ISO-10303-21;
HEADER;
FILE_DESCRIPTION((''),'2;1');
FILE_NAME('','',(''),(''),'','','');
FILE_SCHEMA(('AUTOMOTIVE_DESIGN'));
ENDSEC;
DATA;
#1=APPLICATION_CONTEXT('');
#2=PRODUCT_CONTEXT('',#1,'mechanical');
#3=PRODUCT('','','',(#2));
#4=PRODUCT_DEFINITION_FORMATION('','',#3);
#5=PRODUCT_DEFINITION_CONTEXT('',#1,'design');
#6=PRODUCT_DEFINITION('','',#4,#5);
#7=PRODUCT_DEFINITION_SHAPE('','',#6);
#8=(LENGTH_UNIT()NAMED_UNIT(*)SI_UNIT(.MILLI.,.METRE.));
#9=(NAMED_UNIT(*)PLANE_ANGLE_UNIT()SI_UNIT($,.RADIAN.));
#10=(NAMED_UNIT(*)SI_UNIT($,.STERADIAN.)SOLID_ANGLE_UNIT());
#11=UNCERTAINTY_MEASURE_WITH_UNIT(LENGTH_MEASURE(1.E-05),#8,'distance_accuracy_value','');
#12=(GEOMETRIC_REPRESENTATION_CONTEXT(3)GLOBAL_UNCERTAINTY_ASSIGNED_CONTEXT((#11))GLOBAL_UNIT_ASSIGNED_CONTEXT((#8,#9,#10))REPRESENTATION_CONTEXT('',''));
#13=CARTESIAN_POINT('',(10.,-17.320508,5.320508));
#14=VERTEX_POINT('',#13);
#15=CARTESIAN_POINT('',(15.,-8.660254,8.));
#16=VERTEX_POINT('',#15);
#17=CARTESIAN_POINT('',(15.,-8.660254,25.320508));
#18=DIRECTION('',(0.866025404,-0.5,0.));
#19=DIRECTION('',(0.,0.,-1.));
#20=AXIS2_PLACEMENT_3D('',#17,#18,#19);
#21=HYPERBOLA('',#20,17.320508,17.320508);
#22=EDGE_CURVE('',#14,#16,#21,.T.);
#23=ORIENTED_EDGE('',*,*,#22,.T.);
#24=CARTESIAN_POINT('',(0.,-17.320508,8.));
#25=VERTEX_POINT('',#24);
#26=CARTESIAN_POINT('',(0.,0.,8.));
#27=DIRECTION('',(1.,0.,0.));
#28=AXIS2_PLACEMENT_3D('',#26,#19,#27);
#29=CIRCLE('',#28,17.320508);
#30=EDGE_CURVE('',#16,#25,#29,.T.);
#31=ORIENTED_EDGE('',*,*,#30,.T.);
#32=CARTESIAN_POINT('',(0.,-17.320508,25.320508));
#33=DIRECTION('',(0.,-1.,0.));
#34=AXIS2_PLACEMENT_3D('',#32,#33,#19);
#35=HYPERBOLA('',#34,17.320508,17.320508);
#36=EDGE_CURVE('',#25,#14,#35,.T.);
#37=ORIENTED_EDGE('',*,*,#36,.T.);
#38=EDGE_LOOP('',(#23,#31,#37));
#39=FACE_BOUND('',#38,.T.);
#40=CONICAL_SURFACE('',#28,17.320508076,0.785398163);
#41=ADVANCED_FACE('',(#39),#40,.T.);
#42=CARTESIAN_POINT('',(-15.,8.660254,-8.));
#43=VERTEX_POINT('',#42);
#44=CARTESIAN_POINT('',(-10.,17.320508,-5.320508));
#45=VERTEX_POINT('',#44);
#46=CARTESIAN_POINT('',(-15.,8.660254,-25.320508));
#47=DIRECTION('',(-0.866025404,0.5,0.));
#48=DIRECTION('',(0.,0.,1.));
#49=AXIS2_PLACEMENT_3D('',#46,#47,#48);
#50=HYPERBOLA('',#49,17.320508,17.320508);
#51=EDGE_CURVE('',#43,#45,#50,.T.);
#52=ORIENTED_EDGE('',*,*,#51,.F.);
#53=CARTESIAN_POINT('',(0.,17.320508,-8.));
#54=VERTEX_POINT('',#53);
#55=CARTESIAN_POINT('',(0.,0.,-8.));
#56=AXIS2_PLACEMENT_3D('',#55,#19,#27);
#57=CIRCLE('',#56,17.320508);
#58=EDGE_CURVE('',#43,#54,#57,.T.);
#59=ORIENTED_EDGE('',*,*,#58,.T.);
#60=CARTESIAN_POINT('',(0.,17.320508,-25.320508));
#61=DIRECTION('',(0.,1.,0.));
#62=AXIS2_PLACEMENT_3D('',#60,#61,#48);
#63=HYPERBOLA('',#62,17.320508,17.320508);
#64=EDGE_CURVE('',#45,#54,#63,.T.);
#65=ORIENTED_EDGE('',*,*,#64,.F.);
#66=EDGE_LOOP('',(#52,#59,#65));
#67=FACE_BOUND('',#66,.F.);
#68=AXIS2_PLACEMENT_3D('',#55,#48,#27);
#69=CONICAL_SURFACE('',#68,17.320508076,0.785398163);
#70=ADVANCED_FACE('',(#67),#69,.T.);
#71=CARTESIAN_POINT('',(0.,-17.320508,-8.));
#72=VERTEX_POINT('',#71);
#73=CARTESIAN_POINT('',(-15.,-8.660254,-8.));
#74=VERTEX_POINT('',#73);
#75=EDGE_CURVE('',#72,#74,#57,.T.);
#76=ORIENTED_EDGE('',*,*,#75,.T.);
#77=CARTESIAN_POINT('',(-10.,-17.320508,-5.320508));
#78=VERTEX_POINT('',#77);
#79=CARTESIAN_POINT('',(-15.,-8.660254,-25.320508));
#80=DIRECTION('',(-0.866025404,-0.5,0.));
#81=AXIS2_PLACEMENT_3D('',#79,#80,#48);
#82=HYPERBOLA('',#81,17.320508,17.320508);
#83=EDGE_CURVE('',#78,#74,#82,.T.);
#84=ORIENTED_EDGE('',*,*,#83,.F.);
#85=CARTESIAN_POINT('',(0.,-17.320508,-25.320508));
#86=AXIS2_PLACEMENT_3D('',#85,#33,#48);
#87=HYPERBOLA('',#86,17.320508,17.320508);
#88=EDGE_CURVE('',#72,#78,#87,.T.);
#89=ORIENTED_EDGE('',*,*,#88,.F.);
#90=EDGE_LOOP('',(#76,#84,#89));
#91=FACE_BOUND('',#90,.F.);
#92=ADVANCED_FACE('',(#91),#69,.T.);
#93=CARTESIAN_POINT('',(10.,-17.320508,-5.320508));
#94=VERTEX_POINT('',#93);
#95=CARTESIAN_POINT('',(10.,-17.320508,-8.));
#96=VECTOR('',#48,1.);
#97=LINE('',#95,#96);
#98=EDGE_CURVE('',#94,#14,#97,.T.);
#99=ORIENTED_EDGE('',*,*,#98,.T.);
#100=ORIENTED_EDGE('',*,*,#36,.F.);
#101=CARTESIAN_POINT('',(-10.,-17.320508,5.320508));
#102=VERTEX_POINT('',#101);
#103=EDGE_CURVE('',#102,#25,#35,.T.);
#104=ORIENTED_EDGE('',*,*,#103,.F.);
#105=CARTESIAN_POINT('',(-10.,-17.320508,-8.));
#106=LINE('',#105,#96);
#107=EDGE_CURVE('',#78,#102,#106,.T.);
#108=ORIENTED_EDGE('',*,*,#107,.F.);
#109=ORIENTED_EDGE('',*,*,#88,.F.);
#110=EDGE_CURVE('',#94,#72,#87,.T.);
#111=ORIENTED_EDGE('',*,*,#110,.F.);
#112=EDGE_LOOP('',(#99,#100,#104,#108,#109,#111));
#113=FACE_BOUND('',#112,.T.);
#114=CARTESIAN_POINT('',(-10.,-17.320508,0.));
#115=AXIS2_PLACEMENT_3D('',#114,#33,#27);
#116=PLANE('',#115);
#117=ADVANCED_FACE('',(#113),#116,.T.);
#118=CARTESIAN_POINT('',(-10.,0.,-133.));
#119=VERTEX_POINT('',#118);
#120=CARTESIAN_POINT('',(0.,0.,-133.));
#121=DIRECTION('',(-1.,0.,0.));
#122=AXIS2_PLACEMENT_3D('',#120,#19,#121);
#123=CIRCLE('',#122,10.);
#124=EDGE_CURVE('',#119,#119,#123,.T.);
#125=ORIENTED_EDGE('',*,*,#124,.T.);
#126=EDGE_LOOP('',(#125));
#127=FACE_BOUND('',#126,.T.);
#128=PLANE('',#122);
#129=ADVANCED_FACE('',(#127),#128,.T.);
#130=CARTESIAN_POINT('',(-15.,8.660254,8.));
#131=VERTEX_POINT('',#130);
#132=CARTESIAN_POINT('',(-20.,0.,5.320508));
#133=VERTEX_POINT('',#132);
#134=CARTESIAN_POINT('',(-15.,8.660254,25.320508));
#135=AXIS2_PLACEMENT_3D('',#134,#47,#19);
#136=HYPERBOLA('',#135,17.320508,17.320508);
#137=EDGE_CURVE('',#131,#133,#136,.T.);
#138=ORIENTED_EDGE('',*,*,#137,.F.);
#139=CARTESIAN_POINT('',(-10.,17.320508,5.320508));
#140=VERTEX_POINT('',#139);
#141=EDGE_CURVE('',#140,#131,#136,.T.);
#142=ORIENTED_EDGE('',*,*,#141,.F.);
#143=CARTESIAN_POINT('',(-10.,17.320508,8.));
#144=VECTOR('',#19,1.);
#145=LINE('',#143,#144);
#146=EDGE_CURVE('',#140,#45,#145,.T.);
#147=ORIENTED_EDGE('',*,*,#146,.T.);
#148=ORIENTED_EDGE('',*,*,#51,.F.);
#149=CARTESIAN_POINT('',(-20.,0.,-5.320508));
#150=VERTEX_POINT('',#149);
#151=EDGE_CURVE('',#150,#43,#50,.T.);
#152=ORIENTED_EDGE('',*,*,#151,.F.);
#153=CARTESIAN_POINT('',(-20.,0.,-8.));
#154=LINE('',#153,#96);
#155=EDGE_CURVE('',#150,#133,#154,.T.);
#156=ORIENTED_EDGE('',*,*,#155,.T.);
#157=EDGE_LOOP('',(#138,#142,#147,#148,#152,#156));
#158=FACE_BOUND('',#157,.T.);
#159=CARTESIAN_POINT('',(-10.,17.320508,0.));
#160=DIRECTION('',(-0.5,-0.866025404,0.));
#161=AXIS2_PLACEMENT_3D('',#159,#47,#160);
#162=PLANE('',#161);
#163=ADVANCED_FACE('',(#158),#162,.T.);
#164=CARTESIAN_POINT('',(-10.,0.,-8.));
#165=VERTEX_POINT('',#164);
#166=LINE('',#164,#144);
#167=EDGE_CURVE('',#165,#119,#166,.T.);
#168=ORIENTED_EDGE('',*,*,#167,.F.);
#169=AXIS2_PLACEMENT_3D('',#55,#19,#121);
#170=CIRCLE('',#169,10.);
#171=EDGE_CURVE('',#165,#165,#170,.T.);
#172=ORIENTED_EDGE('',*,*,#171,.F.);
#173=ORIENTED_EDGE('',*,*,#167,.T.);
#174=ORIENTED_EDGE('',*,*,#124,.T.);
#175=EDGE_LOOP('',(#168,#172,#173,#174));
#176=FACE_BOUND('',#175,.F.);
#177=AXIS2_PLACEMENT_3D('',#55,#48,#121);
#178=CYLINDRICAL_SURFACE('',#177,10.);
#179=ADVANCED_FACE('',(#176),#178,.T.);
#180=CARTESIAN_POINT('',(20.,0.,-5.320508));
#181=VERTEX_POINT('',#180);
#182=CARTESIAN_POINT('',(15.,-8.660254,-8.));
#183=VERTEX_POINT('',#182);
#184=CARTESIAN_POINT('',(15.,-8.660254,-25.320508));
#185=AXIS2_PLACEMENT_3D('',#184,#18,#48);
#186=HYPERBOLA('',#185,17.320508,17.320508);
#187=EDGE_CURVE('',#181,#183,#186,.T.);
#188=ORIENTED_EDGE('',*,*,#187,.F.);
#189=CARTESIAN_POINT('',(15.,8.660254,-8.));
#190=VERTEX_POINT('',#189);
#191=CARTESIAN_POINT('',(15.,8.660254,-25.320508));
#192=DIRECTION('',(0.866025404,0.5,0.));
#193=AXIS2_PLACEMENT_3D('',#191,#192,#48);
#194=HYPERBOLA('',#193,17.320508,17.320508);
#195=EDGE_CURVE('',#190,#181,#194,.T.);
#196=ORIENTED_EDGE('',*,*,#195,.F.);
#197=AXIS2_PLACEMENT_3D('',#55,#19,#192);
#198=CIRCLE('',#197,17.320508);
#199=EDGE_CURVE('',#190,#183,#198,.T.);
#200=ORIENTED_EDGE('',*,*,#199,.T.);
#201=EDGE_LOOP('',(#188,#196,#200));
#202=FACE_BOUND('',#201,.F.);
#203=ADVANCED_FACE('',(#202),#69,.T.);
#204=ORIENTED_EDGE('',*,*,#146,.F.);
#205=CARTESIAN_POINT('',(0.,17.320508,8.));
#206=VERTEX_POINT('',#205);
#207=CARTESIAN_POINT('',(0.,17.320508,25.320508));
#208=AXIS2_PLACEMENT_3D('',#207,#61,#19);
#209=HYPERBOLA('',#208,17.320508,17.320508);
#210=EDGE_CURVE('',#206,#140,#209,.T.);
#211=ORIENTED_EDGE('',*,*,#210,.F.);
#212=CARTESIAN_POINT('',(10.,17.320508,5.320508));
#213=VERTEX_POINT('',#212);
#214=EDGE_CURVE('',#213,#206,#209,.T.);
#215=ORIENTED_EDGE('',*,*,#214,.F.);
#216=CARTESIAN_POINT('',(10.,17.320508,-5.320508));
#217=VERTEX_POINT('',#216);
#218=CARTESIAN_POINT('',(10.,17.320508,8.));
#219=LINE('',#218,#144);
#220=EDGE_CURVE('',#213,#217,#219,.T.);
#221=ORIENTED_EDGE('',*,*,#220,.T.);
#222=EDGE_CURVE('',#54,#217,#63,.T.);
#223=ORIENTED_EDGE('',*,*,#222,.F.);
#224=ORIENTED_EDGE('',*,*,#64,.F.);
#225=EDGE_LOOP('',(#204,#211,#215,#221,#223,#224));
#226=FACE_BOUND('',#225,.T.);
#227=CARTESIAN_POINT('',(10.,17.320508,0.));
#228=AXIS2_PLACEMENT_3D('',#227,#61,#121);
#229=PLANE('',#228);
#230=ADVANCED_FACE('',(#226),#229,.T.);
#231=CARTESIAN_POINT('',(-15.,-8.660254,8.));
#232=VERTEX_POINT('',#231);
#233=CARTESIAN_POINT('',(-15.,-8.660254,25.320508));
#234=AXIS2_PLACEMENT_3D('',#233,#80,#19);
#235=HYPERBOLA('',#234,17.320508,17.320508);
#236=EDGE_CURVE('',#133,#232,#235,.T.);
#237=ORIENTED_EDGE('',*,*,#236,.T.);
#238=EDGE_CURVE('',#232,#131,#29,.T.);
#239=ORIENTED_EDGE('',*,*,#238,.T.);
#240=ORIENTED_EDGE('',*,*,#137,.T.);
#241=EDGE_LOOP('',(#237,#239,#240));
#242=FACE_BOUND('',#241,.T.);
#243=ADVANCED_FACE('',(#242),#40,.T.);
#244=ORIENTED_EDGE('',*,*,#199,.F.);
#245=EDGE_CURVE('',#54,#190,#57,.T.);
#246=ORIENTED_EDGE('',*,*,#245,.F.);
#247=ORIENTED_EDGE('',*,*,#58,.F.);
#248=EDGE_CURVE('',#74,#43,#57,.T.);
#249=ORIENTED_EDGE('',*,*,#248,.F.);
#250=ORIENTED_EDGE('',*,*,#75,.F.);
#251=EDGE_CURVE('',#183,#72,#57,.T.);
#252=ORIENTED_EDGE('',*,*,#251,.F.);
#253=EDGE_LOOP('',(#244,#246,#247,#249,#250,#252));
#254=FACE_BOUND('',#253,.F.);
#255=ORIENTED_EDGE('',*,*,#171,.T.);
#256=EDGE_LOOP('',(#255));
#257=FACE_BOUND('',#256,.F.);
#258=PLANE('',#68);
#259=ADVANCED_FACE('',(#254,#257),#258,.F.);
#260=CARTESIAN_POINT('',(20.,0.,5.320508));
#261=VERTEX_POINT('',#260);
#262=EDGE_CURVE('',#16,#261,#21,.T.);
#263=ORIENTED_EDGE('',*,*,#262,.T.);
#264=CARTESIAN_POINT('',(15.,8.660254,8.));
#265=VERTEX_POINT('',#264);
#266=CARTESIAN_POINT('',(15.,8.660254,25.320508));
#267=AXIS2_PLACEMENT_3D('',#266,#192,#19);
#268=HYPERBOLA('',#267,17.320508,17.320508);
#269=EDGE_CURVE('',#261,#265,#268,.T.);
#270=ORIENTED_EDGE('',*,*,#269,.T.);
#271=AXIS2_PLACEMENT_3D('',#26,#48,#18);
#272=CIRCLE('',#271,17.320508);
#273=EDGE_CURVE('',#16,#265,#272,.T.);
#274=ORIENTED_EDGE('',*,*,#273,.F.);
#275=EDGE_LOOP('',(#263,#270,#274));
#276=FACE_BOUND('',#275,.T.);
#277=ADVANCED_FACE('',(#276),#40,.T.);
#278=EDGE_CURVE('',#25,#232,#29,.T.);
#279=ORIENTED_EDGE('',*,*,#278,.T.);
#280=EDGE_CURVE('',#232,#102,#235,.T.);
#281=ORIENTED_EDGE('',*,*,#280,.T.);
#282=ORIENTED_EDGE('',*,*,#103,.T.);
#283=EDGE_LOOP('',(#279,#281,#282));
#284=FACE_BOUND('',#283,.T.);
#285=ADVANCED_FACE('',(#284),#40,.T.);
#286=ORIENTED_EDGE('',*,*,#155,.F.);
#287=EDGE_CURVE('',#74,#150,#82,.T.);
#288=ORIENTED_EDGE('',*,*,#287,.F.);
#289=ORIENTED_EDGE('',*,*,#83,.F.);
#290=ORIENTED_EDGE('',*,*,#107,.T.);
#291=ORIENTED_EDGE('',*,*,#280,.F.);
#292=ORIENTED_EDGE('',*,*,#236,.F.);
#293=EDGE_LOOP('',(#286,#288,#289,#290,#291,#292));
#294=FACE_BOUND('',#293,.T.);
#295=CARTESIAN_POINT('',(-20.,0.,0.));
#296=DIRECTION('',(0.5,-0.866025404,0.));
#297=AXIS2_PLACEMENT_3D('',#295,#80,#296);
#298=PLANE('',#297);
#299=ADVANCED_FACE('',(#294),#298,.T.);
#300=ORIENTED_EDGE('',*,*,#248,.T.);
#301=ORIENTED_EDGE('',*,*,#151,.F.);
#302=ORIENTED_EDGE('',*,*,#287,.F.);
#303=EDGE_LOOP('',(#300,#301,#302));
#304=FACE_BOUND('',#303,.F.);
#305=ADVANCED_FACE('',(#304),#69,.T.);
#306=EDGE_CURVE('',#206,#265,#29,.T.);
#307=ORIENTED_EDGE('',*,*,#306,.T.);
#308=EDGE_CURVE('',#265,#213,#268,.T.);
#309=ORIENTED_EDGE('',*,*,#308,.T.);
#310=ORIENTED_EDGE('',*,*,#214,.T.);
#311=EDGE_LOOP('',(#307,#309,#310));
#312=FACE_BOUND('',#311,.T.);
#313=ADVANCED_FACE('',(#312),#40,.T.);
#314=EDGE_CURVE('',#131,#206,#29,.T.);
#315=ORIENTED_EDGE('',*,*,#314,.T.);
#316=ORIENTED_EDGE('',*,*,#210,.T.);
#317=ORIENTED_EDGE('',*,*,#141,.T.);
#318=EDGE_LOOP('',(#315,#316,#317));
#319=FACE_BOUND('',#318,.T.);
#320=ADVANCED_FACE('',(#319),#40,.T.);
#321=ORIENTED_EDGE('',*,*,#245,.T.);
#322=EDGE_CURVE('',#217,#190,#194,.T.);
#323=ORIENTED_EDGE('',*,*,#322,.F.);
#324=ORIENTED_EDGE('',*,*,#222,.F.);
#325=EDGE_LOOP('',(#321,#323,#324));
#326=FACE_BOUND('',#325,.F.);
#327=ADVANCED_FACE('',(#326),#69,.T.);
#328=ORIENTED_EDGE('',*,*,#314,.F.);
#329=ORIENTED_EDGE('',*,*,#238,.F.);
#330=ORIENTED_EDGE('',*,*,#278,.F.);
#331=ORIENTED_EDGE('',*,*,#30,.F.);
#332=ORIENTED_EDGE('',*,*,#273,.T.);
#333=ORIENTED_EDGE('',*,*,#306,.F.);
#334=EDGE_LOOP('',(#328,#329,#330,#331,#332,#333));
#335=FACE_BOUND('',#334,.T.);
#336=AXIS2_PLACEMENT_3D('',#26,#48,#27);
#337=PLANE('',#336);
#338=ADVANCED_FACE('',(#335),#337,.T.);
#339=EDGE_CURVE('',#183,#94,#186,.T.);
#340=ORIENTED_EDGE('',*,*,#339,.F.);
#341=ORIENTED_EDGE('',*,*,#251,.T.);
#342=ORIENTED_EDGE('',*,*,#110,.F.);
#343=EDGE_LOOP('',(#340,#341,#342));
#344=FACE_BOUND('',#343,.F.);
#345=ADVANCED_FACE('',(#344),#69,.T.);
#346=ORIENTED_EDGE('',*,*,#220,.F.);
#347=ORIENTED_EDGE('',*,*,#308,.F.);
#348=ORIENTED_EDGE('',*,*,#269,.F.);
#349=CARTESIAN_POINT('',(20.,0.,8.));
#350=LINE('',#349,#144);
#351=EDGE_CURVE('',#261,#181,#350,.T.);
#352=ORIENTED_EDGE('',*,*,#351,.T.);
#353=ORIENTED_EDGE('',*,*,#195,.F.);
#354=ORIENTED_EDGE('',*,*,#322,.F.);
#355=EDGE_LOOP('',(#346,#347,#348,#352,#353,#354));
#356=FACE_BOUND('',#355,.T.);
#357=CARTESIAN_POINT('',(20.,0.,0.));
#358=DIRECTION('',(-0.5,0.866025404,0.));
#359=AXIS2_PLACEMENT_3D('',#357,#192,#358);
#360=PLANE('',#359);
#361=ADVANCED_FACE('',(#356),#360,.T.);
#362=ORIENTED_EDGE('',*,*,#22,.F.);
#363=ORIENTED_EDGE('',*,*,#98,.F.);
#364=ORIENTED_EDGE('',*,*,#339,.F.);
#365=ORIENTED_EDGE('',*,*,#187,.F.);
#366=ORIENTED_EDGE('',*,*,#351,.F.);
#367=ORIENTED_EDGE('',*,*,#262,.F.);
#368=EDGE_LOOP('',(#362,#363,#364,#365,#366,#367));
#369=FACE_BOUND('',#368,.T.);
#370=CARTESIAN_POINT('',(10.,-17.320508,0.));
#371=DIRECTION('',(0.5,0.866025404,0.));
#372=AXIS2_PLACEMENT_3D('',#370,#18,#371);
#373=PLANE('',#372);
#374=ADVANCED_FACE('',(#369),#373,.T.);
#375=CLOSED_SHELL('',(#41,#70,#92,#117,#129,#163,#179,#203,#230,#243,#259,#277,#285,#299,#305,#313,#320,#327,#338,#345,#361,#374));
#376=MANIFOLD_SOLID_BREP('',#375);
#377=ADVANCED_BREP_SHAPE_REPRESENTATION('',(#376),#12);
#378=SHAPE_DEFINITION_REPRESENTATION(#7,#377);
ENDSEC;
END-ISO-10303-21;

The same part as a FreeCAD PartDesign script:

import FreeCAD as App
import Part
import Sketcher
Q = App.Units.Quantity

doc = App.newDocument("Part")
body = doc.addObject("PartDesign::Body", "Body")

sketch1 = body.newObject("Sketcher::SketchObject", "Sketch")
sketch1.AttachmentSupport = (doc.getObject("XY_Plane"), [""])
sketch1.MapMode = "FlatFace"
sketch1.addGeometry(Part.LineSegment(App.Vector(-10, 17, 0), App.Vector(-20, 0, 0)), False)
sketch1.addGeometry(Part.LineSegment(App.Vector(-20, 0, 0), App.Vector(-10, -17, 0)), False)
sketch1.addGeometry(Part.LineSegment(App.Vector(-10, -17, 0), App.Vector(10, -17, 0)), False)
sketch1.addGeometry(Part.LineSegment(App.Vector(10, -17, 0), App.Vector(20, 0, 0)), False)
sketch1.addGeometry(Part.LineSegment(App.Vector(20, 0, 0), App.Vector(10, 17, 0)), False)
sketch1.addGeometry(Part.LineSegment(App.Vector(10, 17, 0), App.Vector(-10, 17, 0)), False)
sketch1.addConstraint(Sketcher.Constraint("Coincident", 0, 2, 1, 1))
sketch1.addConstraint(Sketcher.Constraint("Coincident", 1, 2, 2, 1))
sketch1.addConstraint(Sketcher.Constraint("Coincident", 2, 2, 3, 1))
sketch1.addConstraint(Sketcher.Constraint("Coincident", 3, 2, 4, 1))
sketch1.addConstraint(Sketcher.Constraint("Coincident", 4, 2, 5, 1))
sketch1.addConstraint(Sketcher.Constraint("Coincident", 5, 2, 0, 1))
sketch1.addConstraint(Sketcher.Constraint("Horizontal", 2))
sketch1.addConstraint(Sketcher.Constraint("Horizontal", 5))
sketch1.addConstraint(Sketcher.Constraint("Symmetric", 0, 2, 3, 2, -1, 1))
sketch1.addConstraint(Sketcher.Constraint("Symmetric", 1, 2, 4, 2, -1, 1))
sketch1.addConstraint(Sketcher.Constraint("PointOnObject", 0, 2, -1))
sketch1.addConstraint(Sketcher.Constraint("Parallel", 0, 3))
sketch1.addConstraint(Sketcher.Constraint("Vertical", 2, 2, 4, 2))
sketch1.addConstraint(Sketcher.Constraint("DistanceX", 2, 1, 2, 2, 20.0))
sketch1.addConstraint(Sketcher.Constraint("Angle", 0, Q("-120 deg")))
sketch1.addConstraint(Sketcher.Constraint("Distance", 0, 20.0))
pad1 = body.newObject("PartDesign::Pad", "Pad")
pad1.Profile = sketch1
pad1.Length = 16
pad1.Midplane = True

sketch2 = body.newObject("Sketcher::SketchObject", "Sketch001")
sketch2.AttachmentSupport = (doc.getObject("XY_Plane"), [""])
sketch2.MapMode = "FlatFace"
sketch2.AttachmentOffset = App.Placement(App.Vector(0, 0, 8), App.Rotation())
sketch2.addGeometry(Part.LineSegment(App.Vector(-44, 41, 0), App.Vector(-44, -41, 0)), False)
sketch2.addGeometry(Part.LineSegment(App.Vector(-44, -41, 0), App.Vector(44, -41, 0)), False)
sketch2.addGeometry(Part.LineSegment(App.Vector(44, -41, 0), App.Vector(44, 41, 0)), False)
sketch2.addGeometry(Part.LineSegment(App.Vector(44, 41, 0), App.Vector(-44, 41, 0)), False)
sketch2.addGeometry(Part.Circle(App.Vector(0, 0, 0), App.Vector(0, 0, 1), 17), False)
sketch2.addConstraint(Sketcher.Constraint("Coincident", 0, 2, 1, 1))
sketch2.addConstraint(Sketcher.Constraint("Coincident", 1, 2, 2, 1))
sketch2.addConstraint(Sketcher.Constraint("Coincident", 2, 2, 3, 1))
sketch2.addConstraint(Sketcher.Constraint("Coincident", 3, 2, 0, 1))
sketch2.addConstraint(Sketcher.Constraint("Vertical", 0))
sketch2.addConstraint(Sketcher.Constraint("Horizontal", 1))
sketch2.addConstraint(Sketcher.Constraint("Vertical", 2))
sketch2.addConstraint(Sketcher.Constraint("Horizontal", 3))
sketch2.addConstraint(Sketcher.Constraint("Coincident", 4, 3, -1, 1))
sketch2.addConstraint(Sketcher.Constraint("Symmetric", 0, 2, 2, 2, -1, 1))
sketch2.addConstraint(Sketcher.Constraint("DistanceX", 1, 1, 1, 2, 87.056))
sketch2.addConstraint(Sketcher.Constraint("DistanceY", 0, 2, 0, 1, 81.698))
sketch2.addConstraint(Sketcher.Constraint("Diameter", 4, 34.641016))
pocket1 = body.newObject("PartDesign::Pocket", "Pocket")
pocket1.Profile = sketch2
pocket1.Length = 17
pocket1.TaperAngle = 45
doc.recompute()

mirrored = body.newObject("PartDesign::Mirrored", "Mirrored")
mirrored.Originals = [pocket1]
mirrored.MirrorPlane = (doc.getObject("XY_Plane"), [""])
body.Tip = mirrored

sketch3 = body.newObject("Sketcher::SketchObject", "Sketch002")
sketch3.AttachmentSupport = (doc.getObject("XY_Plane"), [""])
sketch3.MapMode = "FlatFace"
sketch3.AttachmentOffset = App.Placement(App.Vector(0, 0, -8), App.Rotation())
sketch3.addGeometry(Part.Circle(App.Vector(0, 0, 0), App.Vector(0, 0, 1), 10), False)
sketch3.addConstraint(Sketcher.Constraint("Coincident", 0, 3, -1, 1))
sketch3.addConstraint(Sketcher.Constraint("Diameter", 0, 20.0))
pad2 = body.newObject("PartDesign::Pad", "Pad001")
pad2.Profile = sketch3
pad2.Length = 125
pad2.Reversed = True

doc.recompute()
